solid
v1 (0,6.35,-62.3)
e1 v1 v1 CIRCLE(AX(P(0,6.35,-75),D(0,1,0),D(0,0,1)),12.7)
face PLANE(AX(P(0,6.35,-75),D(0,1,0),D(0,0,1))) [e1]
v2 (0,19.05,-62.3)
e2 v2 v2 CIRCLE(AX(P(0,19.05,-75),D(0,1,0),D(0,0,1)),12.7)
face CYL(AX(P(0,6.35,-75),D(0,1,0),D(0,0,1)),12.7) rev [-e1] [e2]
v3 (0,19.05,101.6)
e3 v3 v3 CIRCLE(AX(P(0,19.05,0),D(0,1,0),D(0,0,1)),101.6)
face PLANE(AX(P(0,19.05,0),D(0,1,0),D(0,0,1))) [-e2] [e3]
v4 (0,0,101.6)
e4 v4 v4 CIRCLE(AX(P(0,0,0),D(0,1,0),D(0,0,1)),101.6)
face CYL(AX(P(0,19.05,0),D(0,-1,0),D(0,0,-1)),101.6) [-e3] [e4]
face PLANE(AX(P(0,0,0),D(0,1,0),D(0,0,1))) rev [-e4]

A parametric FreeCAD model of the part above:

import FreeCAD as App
import Part
import Sketcher

V = App.Vector
Q = App.Units.Quantity

doc = App.newDocument("Part")
body = doc.addObject("PartDesign::Body", "Body")

sketch1 = body.newObject("Sketcher::SketchObject", "Sketch")
sketch1.AttachmentSupport = (doc.getObject("XZ_Plane"), [""])
sketch1.MapMode = "FlatFace"
sketch1.addGeometry(Part.Circle(V(0, 0, 0), V(0, 0, 1), 102), False)
sketch1.addConstraint([
    Sketcher.Constraint("Coincident", 0, 3, -1, 1),
    Sketcher.Constraint("Diameter", 0, Q("8 in")),
])
pad1 = body.newObject("PartDesign::Pad", "Pad")
pad1.Profile = sketch1
pad1.Length = Q("0.75 in")
pad1.Reversed = True

sketch2 = body.newObject("Sketcher::SketchObject", "Sketch001")
sketch2.AttachmentSupport = (doc.getObject("XZ_Plane"), [""])
sketch2.MapMode = "FlatFace"
sketch2.AttachmentOffset = App.Placement(V(0, 0, -0.75 * 25.4), App.Rotation())
sketch2.addGeometry(Part.Circle(V(0, -75, 0), V(0, 0, 1), 13), False)
sketch2.addConstraint([
    Sketcher.Constraint("PointOnObject", 0, 3, -2),
    Sketcher.Constraint("Diameter", 0, Q("1 in")),
    Sketcher.Constraint("DistanceY", 0, 3, -1, 1, Q("75 mm")),
])
pocket1 = body.newObject("PartDesign::Pocket", "Pocket")
pocket1.Profile = sketch2
pocket1.Length = Q("0.5 in")
pocket1.Reversed = True

doc.recompute()
